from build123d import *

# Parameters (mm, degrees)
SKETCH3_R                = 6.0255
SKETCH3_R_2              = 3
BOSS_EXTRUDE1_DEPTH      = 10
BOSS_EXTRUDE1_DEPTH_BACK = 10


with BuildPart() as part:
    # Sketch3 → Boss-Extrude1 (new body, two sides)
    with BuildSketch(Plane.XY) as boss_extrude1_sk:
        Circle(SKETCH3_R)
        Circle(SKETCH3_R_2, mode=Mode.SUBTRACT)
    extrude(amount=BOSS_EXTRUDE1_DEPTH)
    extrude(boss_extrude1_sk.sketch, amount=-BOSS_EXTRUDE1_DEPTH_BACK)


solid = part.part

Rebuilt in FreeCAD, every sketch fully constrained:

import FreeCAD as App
import Part
import Sketcher
Q = App.Units.Quantity

doc = App.newDocument("Part")
body = doc.addObject("PartDesign::Body", "Body")

sketch1 = body.newObject("Sketcher::SketchObject", "Sketch")
sketch1.AttachmentSupport = (doc.getObject("XY_Plane"), [""])
sketch1.MapMode = "FlatFace"
sketch1.addGeometry(Part.Circle(App.Vector(0, 0, 0), App.Vector(0, 0, 1), 6), False)
sketch1.addGeometry(Part.Circle(App.Vector(0, 0, 0), App.Vector(0, 0, 1), 3), False)
sketch1.addConstraint(Sketcher.Constraint("Coincident", 0, 3, -1, 1))
sketch1.addConstraint(Sketcher.Constraint("Coincident", 1, 3, -1, 1))
sketch1.addConstraint(Sketcher.Constraint("Diameter", 1, Q("6 mm")))
sketch1.addConstraint(Sketcher.Constraint("Diameter", 0, Q("12.051 mm")))
pad1 = body.newObject("PartDesign::Pad", "Pad")
pad1.Profile = sketch1
pad1.Type = "TwoLengths"
pad1.Length = 10
pad1.Length2 = 10

doc.recompute()
